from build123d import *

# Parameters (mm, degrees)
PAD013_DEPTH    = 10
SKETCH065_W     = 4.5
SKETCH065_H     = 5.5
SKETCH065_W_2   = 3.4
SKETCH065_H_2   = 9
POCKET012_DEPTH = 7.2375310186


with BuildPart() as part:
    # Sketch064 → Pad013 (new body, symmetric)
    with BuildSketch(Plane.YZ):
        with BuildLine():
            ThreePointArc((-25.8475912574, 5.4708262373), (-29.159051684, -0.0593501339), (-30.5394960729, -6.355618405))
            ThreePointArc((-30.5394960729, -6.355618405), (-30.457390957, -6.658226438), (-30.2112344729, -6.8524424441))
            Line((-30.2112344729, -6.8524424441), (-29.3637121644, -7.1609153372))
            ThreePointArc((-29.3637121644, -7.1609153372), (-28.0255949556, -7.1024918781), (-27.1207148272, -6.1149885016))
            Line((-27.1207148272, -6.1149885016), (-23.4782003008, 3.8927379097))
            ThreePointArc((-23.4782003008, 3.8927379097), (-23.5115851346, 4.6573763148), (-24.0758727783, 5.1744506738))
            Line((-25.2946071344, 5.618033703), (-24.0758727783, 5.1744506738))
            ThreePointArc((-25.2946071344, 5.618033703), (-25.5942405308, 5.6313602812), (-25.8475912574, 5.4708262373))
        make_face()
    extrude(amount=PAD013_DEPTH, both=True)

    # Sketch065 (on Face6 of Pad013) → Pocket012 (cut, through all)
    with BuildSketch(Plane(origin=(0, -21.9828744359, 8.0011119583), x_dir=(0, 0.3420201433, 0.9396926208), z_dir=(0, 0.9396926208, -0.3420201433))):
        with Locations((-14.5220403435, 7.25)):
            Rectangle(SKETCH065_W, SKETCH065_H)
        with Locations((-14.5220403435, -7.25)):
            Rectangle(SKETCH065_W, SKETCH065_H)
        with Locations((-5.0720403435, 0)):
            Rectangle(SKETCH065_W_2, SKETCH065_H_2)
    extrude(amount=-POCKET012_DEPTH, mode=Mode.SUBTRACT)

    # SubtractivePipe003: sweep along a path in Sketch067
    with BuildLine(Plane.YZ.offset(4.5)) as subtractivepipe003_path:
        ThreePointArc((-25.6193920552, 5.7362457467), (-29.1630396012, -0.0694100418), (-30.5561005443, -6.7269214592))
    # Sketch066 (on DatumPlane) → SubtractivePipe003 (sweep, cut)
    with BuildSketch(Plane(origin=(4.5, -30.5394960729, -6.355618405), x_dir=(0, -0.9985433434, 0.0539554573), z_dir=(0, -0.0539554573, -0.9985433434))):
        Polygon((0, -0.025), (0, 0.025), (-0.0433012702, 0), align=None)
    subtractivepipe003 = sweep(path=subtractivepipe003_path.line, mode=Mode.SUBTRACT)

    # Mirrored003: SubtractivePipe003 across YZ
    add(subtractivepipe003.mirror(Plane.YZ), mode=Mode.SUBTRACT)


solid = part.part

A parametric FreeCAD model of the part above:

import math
import FreeCAD as App
import Part
import Sketcher

V = App.Vector
Q = App.Units.Quantity


def add_polygon(sketch, points):
    """Adds a closed chain of lines whose ends are joined by coincident constraints."""
    first, n = sketch.GeometryCount, len(points)
    for a, b in zip(points, points[1:] + points[:1]):
        sketch.addGeometry(Part.LineSegment(App.Vector(*a, 0), App.Vector(*b, 0)), False)
    for i in range(n):
        sketch.addConstraint(Sketcher.Constraint("Coincident", first + i, 2, first + (i + 1) % n, 1))

doc = App.newDocument("Part")
body = doc.addObject("PartDesign::Body", "Body")

sketch1 = body.newObject("Sketcher::SketchObject", "Sketch")
sketch1.AttachmentSupport = (doc.getObject("YZ_Plane"), [""])
sketch1.MapMode = "FlatFace"
sketch1.addGeometry(Part.ArcOfCircle(Part.Circle(V(-10.568629, -7.434728, 0), V(0, 0, 1), 20), math.radians(139.813501), math.radians(176.907078)), False)
sketch1.addGeometry(Part.ArcOfCircle(Part.Circle(V(-30.040224, -6.382596, 0), V(0, 0, 1), 0.5), math.radians(176.907078), math.radians(250)), False)
sketch1.addGeometry(Part.LineSegment(V(-30.211234, -6.852442, 0), V(-29.363712, -7.160915, 0)), False)
sketch1.addGeometry(Part.ArcOfCircle(Part.Circle(V(-28.765177, -5.516453, 0), V(0, 0, 1), 1.75), math.radians(-110), math.radians(-20)), False)
sketch1.addGeometry(Part.LineSegment(V(-27.120715, -6.114989, 0), V(-23.4782, 3.892738, 0)), False)
sketch1.addGeometry(Part.ArcOfCircle(Part.Circle(V(-24.417893, 4.234758, 0), V(0, 0, 1), 1), math.radians(-20), math.radians(70)), False)
sketch1.addGeometry(Part.LineSegment(V(-24.075873, 5.174451, 0), V(-25.294607, 5.618034, 0)), False)
sketch1.addGeometry(Part.ArcOfCircle(Part.Circle(V(-25.465617, 5.148187, 0), V(0, 0, 1), 0.5), math.radians(70), math.radians(139.813501)), False)
sketch1.addConstraint(Sketcher.Constraint("Tangent", 0, 2, 1, 1))
sketch1.addConstraint(Sketcher.Constraint("Tangent", 1, 2, 2, 1))
sketch1.addConstraint(Sketcher.Constraint("Tangent", 2, 2, 3, 1))
sketch1.addConstraint(Sketcher.Constraint("Tangent", 3, 2, 4, 1))
sketch1.addConstraint(Sketcher.Constraint("Tangent", 4, 2, 5, 1))
sketch1.addConstraint(Sketcher.Constraint("Tangent", 5, 2, 6, 1))
sketch1.addConstraint(Sketcher.Constraint("Tangent", 6, 2, 7, 1))
sketch1.addConstraint(Sketcher.Constraint("Tangent", 7, 2, 0, 1))
sketch1.addConstraint(Sketcher.Constraint("Equal", 1, 7))
sketch1.addConstraint(Sketcher.Constraint("Perpendicular", 2, 4))
sketch1.addConstraint(Sketcher.Constraint("Perpendicular", 4, 6))
sketch1.addConstraint(Sketcher.Constraint("Radius", 0, Q("20 mm")))
sketch1.addConstraint(Sketcher.Constraint("Radius", 5, Q("1 mm")))
sketch1.addConstraint(Sketcher.Constraint("Radius", 1, Q("0.5 mm")))
sketch1.addConstraint(Sketcher.Constraint("Angle", 2, Q("-20 deg")))
sketch1.addConstraint(Sketcher.Constraint("Radius", 3, Q("1.75 mm")))
sketch1.addConstraint(Sketcher.Constraint("Distance", 4, Q("10.65 mm")))
sketch1.addConstraint(Sketcher.Constraint("DistanceX", 4, 2, -1, 1, Q("23.4782 mm")))
sketch1.addConstraint(Sketcher.Constraint("DistanceY", 1, 2, 5, 3, Q("11.0872 mm")))
sketch1.addConstraint(Sketcher.Constraint("DistanceX", 7, 2, 5, 3, Q("1.429698 mm")))
sketch1.addConstraint(Sketcher.Constraint("DistanceY", -1, 1, 5, 3, Q("4.234758 mm")))
pad1 = body.newObject("PartDesign::Pad", "Pad")
pad1.Profile = sketch1
pad1.Length = 20
pad1.Midplane = True

sketch2 = body.newObject("Sketcher::SketchObject", "Sketch001")
sketch2.Placement = App.Placement(V(0, -21.982874, 8.001112), App.Rotation(V(0, 0.342020143, 0.939692621), V(1, 0, 0), V(0, 0.939692621, -0.342020143), "ZXY"))
add_polygon(sketch2, [(-16.77204, 10), (-16.77204, 4.5), (-12.27204, 4.5), (-12.27204, 10)])
add_polygon(sketch2, [(-16.77204, -4.5), (-16.77204, -10), (-12.27204, -10), (-12.27204, -4.5)])
add_polygon(sketch2, [(-6.77204, 4.5), (-6.77204, -4.5), (-3.37204, -4.5), (-3.37204, 4.5)])
sketch2.addConstraint(Sketcher.Constraint("Vertical", 0))
sketch2.addConstraint(Sketcher.Constraint("Horizontal", 1))
sketch2.addConstraint(Sketcher.Constraint("Vertical", 2))
sketch2.addConstraint(Sketcher.Constraint("Horizontal", 3))
sketch2.addConstraint(Sketcher.Constraint("Vertical", 4))
sketch2.addConstraint(Sketcher.Constraint("Horizontal", 5))
sketch2.addConstraint(Sketcher.Constraint("Vertical", 6))
sketch2.addConstraint(Sketcher.Constraint("Horizontal", 7))
sketch2.addConstraint(Sketcher.Constraint("Vertical", 8))
sketch2.addConstraint(Sketcher.Constraint("Horizontal", 9))
sketch2.addConstraint(Sketcher.Constraint("Vertical", 10))
sketch2.addConstraint(Sketcher.Constraint("Horizontal", 11))
sketch2.addConstraint(Sketcher.Constraint("Symmetric", 3, 2, 4, 2, -1))
sketch2.addConstraint(Sketcher.Constraint("Symmetric", 1, 2, 6, 2, -1))
sketch2.addConstraint(Sketcher.Constraint("Horizontal", 7, 2, 8, 2))
sketch2.addConstraint(Sketcher.Constraint("Horizontal", 1, 2, 10, 2))
sketch2.addConstraint(Sketcher.Constraint("DistanceY", 8, 2, 8, 1, Q("9 mm")))
sketch2.addConstraint(Sketcher.Constraint("DistanceX", 1, 1, 1, 2, Q("4.5 mm")))
sketch2.addConstraint(Sketcher.Constraint("DistanceX", 9, 1, 9, 2, Q("3.4 mm")))
sketch2.addConstraint(Sketcher.Constraint("DistanceY", 0, 2, 0, 1, Q("5.5 mm")))
sketch2.addConstraint(Sketcher.Constraint("DistanceX", 7, 2, 8, 2, Q("10 mm")))
sketch2.addConstraint(Sketcher.Constraint("DistanceX", 0, 2, -1, 1, Q("16.77204 mm")))
pocket1 = body.newObject("PartDesign::Pocket", "Pocket")
pocket1.Profile = sketch2
pocket1.Type = "ThroughAll"

sketch3 = body.newObject("Sketcher::SketchObject", "Sketch002")
sketch3.Placement = App.Placement(V(4.5, -30.539496, -6.355618), App.Rotation(V(0, -0.998543343, 0.053955457), V(-0.999999999, 0, 0), V(0, -0.053955457, -0.998543343), "ZXY"))
add_polygon(sketch3, [(0, -0.025), (0, 0.025), (-0.043301, 0)])
sketch3.addConstraint(Sketcher.Constraint("Vertical", 0))
sketch3.addConstraint(Sketcher.Constraint("Symmetric", 0, 2, 2, 2, -1, 1))
sketch3.addConstraint(Sketcher.Constraint("PointOnObject", 1, 2, -1))
sketch3.addConstraint(Sketcher.Constraint("Angle", 1, Q("-150 deg")))
sketch3.addConstraint(Sketcher.Constraint("DistanceY", 0, 1, 0, 2, Q("0.05 mm")))

sketch4 = body.newObject("Sketcher::SketchObject", "Sketch003")
sketch4.AttachmentSupport = (doc.getObject("YZ_Plane"), [""])
sketch4.MapMode = "FlatFace"
sketch4.AttachmentOffset = App.Placement(V(0, 0, 4.5), App.Rotation())
sketch4.addGeometry(Part.ArcOfCircle(Part.Circle(V(-10.568629, -7.434728, 0), V(0, 0, 1), 20), math.radians(138.810721), math.radians(177.971861)), False)
sketch4.addConstraint(Sketcher.Constraint("Radius", 0, Q("20 mm")))
sketch4.addConstraint(Sketcher.Constraint("DistanceX", 0, 2, -1, 1, Q("30.556101 mm")))
sketch4.addConstraint(Sketcher.Constraint("DistanceX", 0, 3, -1, 1, Q("10.568629 mm")))
sketch4.addConstraint(Sketcher.Constraint("DistanceY", 0, 2, -1, 1, Q("6.726921 mm")))
sketch4.addConstraint(Sketcher.Constraint("DistanceX", 0, 2, 0, 1, Q("4.936708 mm")))
doc.recompute()

subtractivepipe = body.newObject("PartDesign::SubtractivePipe", "SubtractivePipe")
subtractivepipe.Profile = sketch3
subtractivepipe.Spine = (sketch4, ["Edge1"])
doc.recompute()

mirrored = body.newObject("PartDesign::Mirrored", "Mirrored")
mirrored.Originals = [subtractivepipe]
mirrored.MirrorPlane = (doc.getObject("YZ_Plane"), [""])
body.Tip = mirrored

doc.recompute()
